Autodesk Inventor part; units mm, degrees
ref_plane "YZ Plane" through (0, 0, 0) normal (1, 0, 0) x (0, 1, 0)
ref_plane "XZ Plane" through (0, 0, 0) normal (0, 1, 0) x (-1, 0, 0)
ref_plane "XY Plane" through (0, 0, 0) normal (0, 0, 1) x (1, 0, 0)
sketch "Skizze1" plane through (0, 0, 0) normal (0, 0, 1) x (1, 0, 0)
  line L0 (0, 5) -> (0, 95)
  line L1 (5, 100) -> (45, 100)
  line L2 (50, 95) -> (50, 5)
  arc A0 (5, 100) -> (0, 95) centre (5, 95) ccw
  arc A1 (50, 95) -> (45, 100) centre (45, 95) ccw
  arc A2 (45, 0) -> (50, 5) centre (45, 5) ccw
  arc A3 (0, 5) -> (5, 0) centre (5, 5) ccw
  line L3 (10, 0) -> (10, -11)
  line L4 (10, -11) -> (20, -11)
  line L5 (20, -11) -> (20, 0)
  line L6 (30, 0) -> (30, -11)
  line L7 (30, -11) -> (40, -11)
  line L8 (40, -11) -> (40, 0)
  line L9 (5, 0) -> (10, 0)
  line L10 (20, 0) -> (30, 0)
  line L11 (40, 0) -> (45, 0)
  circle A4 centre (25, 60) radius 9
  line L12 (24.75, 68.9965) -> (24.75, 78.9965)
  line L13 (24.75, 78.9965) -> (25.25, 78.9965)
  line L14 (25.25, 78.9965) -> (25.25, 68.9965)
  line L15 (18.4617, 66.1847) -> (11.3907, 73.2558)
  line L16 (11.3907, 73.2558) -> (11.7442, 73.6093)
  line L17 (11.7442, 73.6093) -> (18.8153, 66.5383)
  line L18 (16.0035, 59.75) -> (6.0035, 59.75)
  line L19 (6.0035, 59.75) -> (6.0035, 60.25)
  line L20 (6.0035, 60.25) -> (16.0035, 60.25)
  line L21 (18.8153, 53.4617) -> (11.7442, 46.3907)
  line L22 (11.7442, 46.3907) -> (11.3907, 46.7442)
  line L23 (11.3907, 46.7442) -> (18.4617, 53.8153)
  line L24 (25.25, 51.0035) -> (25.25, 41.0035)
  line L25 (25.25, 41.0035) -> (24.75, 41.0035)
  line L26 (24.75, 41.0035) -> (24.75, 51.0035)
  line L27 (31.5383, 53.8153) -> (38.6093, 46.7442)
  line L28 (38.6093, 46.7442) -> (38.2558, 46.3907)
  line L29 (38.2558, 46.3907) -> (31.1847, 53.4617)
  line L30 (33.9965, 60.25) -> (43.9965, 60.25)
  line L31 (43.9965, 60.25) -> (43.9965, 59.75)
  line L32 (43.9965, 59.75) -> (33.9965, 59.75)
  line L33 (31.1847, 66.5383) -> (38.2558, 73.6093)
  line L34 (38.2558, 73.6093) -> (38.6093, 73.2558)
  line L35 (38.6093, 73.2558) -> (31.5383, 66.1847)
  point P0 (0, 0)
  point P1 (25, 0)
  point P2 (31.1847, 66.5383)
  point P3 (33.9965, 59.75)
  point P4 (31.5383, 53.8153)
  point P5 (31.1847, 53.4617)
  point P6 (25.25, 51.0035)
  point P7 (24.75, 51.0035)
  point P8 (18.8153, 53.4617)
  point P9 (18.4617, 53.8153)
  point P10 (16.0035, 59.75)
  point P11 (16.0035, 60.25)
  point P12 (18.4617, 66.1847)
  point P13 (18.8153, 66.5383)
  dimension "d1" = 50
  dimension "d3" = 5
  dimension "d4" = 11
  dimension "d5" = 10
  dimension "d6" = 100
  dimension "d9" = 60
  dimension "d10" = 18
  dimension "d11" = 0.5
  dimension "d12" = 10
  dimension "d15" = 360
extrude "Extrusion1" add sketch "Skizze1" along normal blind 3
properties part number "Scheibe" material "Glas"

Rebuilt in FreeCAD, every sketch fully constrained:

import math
import FreeCAD as App
import Part
import Sketcher

V = App.Vector
Q = App.Units.Quantity

doc = App.newDocument("Part")
params = doc.addObject("Spreadsheet::Sheet", "Params")
for row, (alias, value) in enumerate([
    ("sketch1_radius", "5 mm"),
    ("sketch1_radius2", "9 mm"),
    ("sketch1_width", "5 mm"),
    ("sketch1_width2", "10 mm"),
    ("sketch1_height", "11 mm"),
    ("pad1_length", "3 mm"),
], start=1):
    params.set(f"A{row}", alias)
    params.set(f"B{row}", "=" + value)
    params.setAlias(f"B{row}", alias)

body = doc.addObject("PartDesign::Body", "Body")

# Sketch on XY plane
sketch1 = body.newObject("Sketcher::SketchObject", "Sketch")
sketch1.AttachmentSupport = (doc.getObject("XY_Plane"), [""])
sketch1.MapMode = "FlatFace"
sketch1.addGeometry(Part.LineSegment(V(0, 95, 0), V(0, 5, 0)), False)
sketch1.addGeometry(Part.ArcOfCircle(Part.Circle(V(5, 5, 0), V(0, 0, 1), 5), math.radians(180), math.radians(270)), False)
sketch1.addGeometry(Part.LineSegment(V(5, 0, 0), V(10, 0, 0)), False)
sketch1.addGeometry(Part.LineSegment(V(10, 0, 0), V(10, -11, 0)), False)
sketch1.addGeometry(Part.LineSegment(V(10, -11, 0), V(20, -11, 0)), False)
sketch1.addGeometry(Part.LineSegment(V(20, -11, 0), V(20, 0, 0)), False)
sketch1.addGeometry(Part.LineSegment(V(20, 0, 0), V(30, 0, 0)), False)
sketch1.addGeometry(Part.LineSegment(V(30, 0, 0), V(30, -11, 0)), False)
sketch1.addGeometry(Part.LineSegment(V(30, -11, 0), V(40, -11, 0)), False)
sketch1.addGeometry(Part.LineSegment(V(40, -11, 0), V(40, 0, 0)), False)
sketch1.addGeometry(Part.LineSegment(V(40, 0, 0), V(45, 0, 0)), False)
sketch1.addGeometry(Part.ArcOfCircle(Part.Circle(V(45, 5, 0), V(0, 0, 1), 5), math.radians(-90), math.radians(0)), False)
sketch1.addGeometry(Part.LineSegment(V(50, 5, 0), V(50, 95, 0)), False)
sketch1.addGeometry(Part.ArcOfCircle(Part.Circle(V(45, 95, 0), V(0, 0, 1), 5), math.radians(0), math.radians(90)), False)
sketch1.addGeometry(Part.LineSegment(V(45, 100, 0), V(5, 100, 0)), False)
sketch1.addGeometry(Part.ArcOfCircle(Part.Circle(V(5, 95, 0), V(0, 0, 1), 5), math.radians(90), math.radians(180)), False)
sketch1.addGeometry(Part.ArcOfCircle(Part.Circle(V(25, 60, 0), V(0, 0, 1), 9), math.radians(1.591759), math.radians(43.408035)), False)
sketch1.addGeometry(Part.LineSegment(V(33.9965, 60.25, 0), V(43.9965, 60.25, 0)), False)
sketch1.addGeometry(Part.LineSegment(V(43.9965, 60.25, 0), V(43.9965, 59.75, 0)), False)
sketch1.addGeometry(Part.LineSegment(V(43.9965, 59.75, 0), V(33.9965, 59.75, 0)), False)
sketch1.addGeometry(Part.ArcOfCircle(Part.Circle(V(25, 60, 0), V(0, 0, 1), 9), math.radians(-43.408035), math.radians(-1.591759)), False)
sketch1.addGeometry(Part.LineSegment(V(31.5383, 53.8153, 0), V(38.6093, 46.7442, 0)), False)
sketch1.addGeometry(Part.LineSegment(V(38.6093, 46.7442, 0), V(38.2558, 46.3907, 0)), False)
sketch1.addGeometry(Part.LineSegment(V(38.2558, 46.3907, 0), V(31.1847, 53.4617, 0)), False)
sketch1.addGeometry(Part.ArcOfCircle(Part.Circle(V(25, 60, 0), V(0, 0, 1), 9), math.radians(-88.408241), math.radians(-46.591965)), False)
sketch1.addGeometry(Part.LineSegment(V(25.25, 51.0035, 0), V(25.25, 41.0035, 0)), False)
sketch1.addGeometry(Part.LineSegment(V(25.25, 41.0035, 0), V(24.75, 41.0035, 0)), False)
sketch1.addGeometry(Part.LineSegment(V(24.75, 41.0035, 0), V(24.75, 51.0035, 0)), False)
sketch1.addGeometry(Part.ArcOfCircle(Part.Circle(V(25, 60, 0), V(0, 0, 1), 9), math.radians(-133.408035), math.radians(-91.591759)), False)
sketch1.addGeometry(Part.LineSegment(V(18.8153, 53.4617, 0), V(11.7442, 46.3907, 0)), False)
sketch1.addGeometry(Part.LineSegment(V(11.7442, 46.3907, 0), V(11.3907, 46.7442, 0)), False)
sketch1.addGeometry(Part.LineSegment(V(11.3907, 46.7442, 0), V(18.4617, 53.8153, 0)), False)
sketch1.addGeometry(Part.ArcOfCircle(Part.Circle(V(25, 60, 0), V(0, 0, 1), 9), math.radians(-178.408241), math.radians(-136.591965)), False)
sketch1.addGeometry(Part.LineSegment(V(16.0035, 59.75, 0), V(6.0035, 59.75, 0)), False)
sketch1.addGeometry(Part.LineSegment(V(6.0035, 59.75, 0), V(6.0035, 60.25, 0)), False)
sketch1.addGeometry(Part.LineSegment(V(6.0035, 60.25, 0), V(16.0035, 60.25, 0)), False)
sketch1.addGeometry(Part.ArcOfCircle(Part.Circle(V(25, 60, 0), V(0, 0, 1), 9), math.radians(136.591965), math.radians(178.408241)), False)
sketch1.addGeometry(Part.LineSegment(V(18.4617, 66.1847, 0), V(11.3907, 73.2558, 0)), False)
sketch1.addGeometry(Part.LineSegment(V(11.3907, 73.2558, 0), V(11.7442, 73.6093, 0)), False)
sketch1.addGeometry(Part.LineSegment(V(11.7442, 73.6093, 0), V(18.8153, 66.5383, 0)), False)
sketch1.addGeometry(Part.ArcOfCircle(Part.Circle(V(25, 60, 0), V(0, 0, 1), 9), math.radians(91.591759), math.radians(133.408035)), False)
sketch1.addGeometry(Part.LineSegment(V(24.75, 68.9965, 0), V(24.75, 78.9965, 0)), False)
sketch1.addGeometry(Part.LineSegment(V(24.75, 78.9965, 0), V(25.25, 78.9965, 0)), False)
sketch1.addGeometry(Part.LineSegment(V(25.25, 78.9965, 0), V(25.25, 68.9965, 0)), False)
sketch1.addGeometry(Part.ArcOfCircle(Part.Circle(V(25, 60, 0), V(0, 0, 1), 9), math.radians(46.591965), math.radians(88.408241)), False)
sketch1.addGeometry(Part.LineSegment(V(31.1847, 66.5383, 0), V(38.2558, 73.6093, 0)), False)
sketch1.addGeometry(Part.LineSegment(V(38.2558, 73.6093, 0), V(38.6093, 73.2558, 0)), False)
sketch1.addGeometry(Part.LineSegment(V(38.6093, 73.2558, 0), V(31.5383, 66.1847, 0)), False)
sketch1.addConstraint(Sketcher.Constraint("Tangent", 0, 2, 1, 1))
sketch1.addConstraint(Sketcher.Constraint("Tangent", 1, 2, 2, 1))
sketch1.addConstraint(Sketcher.Constraint("Coincident", 2, 2, 3, 1))
sketch1.addConstraint(Sketcher.Constraint("Coincident", 3, 2, 4, 1))
sketch1.addConstraint(Sketcher.Constraint("Coincident", 4, 2, 5, 1))
sketch1.addConstraint(Sketcher.Constraint("Coincident", 5, 2, 6, 1))
sketch1.addConstraint(Sketcher.Constraint("Coincident", 6, 2, 7, 1))
sketch1.addConstraint(Sketcher.Constraint("Coincident", 7, 2, 8, 1))
sketch1.addConstraint(Sketcher.Constraint("Coincident", 8, 2, 9, 1))
sketch1.addConstraint(Sketcher.Constraint("Coincident", 9, 2, 10, 1))
sketch1.addConstraint(Sketcher.Constraint("Tangent", 10, 2, 11, 1))
sketch1.addConstraint(Sketcher.Constraint("Tangent", 11, 2, 12, 1))
sketch1.addConstraint(Sketcher.Constraint("Tangent", 12, 2, 13, 1))
sketch1.addConstraint(Sketcher.Constraint("Tangent", 13, 2, 14, 1))
sketch1.addConstraint(Sketcher.Constraint("Tangent", 14, 2, 15, 1))
sketch1.addConstraint(Sketcher.Constraint("Tangent", 15, 2, 0, 1))
sketch1.addConstraint(Sketcher.Constraint("Coincident", 16, 1, 17, 1))
sketch1.addConstraint(Sketcher.Constraint("Coincident", 17, 2, 18, 1))
sketch1.addConstraint(Sketcher.Constraint("Coincident", 18, 2, 19, 1))
sketch1.addConstraint(Sketcher.Constraint("Coincident", 19, 2, 20, 2))
sketch1.addConstraint(Sketcher.Constraint("Coincident", 20, 1, 21, 1))
sketch1.addConstraint(Sketcher.Constraint("Coincident", 21, 2, 22, 1))
sketch1.addConstraint(Sketcher.Constraint("Coincident", 22, 2, 23, 1))
sketch1.addConstraint(Sketcher.Constraint("Coincident", 23, 2, 24, 2))
sketch1.addConstraint(Sketcher.Constraint("Coincident", 24, 1, 25, 1))
sketch1.addConstraint(Sketcher.Constraint("Coincident", 25, 2, 26, 1))
sketch1.addConstraint(Sketcher.Constraint("Coincident", 26, 2, 27, 1))
sketch1.addConstraint(Sketcher.Constraint("Coincident", 27, 2, 28, 2))
sketch1.addConstraint(Sketcher.Constraint("Coincident", 28, 1, 29, 1))
sketch1.addConstraint(Sketcher.Constraint("Coincident", 29, 2, 30, 1))
sketch1.addConstraint(Sketcher.Constraint("Coincident", 30, 2, 31, 1))
sketch1.addConstraint(Sketcher.Constraint("Coincident", 31, 2, 32, 2))
sketch1.addConstraint(Sketcher.Constraint("Coincident", 32, 1, 33, 1))
sketch1.addConstraint(Sketcher.Constraint("Coincident", 33, 2, 34, 1))
sketch1.addConstraint(Sketcher.Constraint("Coincident", 34, 2, 35, 1))
sketch1.addConstraint(Sketcher.Constraint("Coincident", 35, 2, 36, 2))
sketch1.addConstraint(Sketcher.Constraint("Coincident", 36, 1, 37, 1))
sketch1.addConstraint(Sketcher.Constraint("Coincident", 37, 2, 38, 1))
sketch1.addConstraint(Sketcher.Constraint("Coincident", 38, 2, 39, 1))
sketch1.addConstraint(Sketcher.Constraint("Coincident", 39, 2, 40, 2))
sketch1.addConstraint(Sketcher.Constraint("Coincident", 40, 1, 41, 1))
sketch1.addConstraint(Sketcher.Constraint("Coincident", 41, 2, 42, 1))
sketch1.addConstraint(Sketcher.Constraint("Coincident", 42, 2, 43, 1))
sketch1.addConstraint(Sketcher.Constraint("Coincident", 43, 2, 44, 2))
sketch1.addConstraint(Sketcher.Constraint("Coincident", 44, 1, 45, 1))
sketch1.addConstraint(Sketcher.Constraint("Coincident", 45, 2, 46, 1))
sketch1.addConstraint(Sketcher.Constraint("Coincident", 46, 2, 47, 1))
sketch1.addConstraint(Sketcher.Constraint("Coincident", 47, 2, 16, 2))
sketch1.addConstraint(Sketcher.Constraint("Vertical", 0))
sketch1.addConstraint(Sketcher.Constraint("Horizontal", 2))
sketch1.addConstraint(Sketcher.Constraint("Vertical", 3))
sketch1.addConstraint(Sketcher.Constraint("Horizontal", 4))
sketch1.addConstraint(Sketcher.Constraint("Vertical", 5))
sketch1.addConstraint(Sketcher.Constraint("Horizontal", 6))
sketch1.addConstraint(Sketcher.Constraint("Vertical", 7))
sketch1.addConstraint(Sketcher.Constraint("Horizontal", 8))
sketch1.addConstraint(Sketcher.Constraint("Vertical", 9))
sketch1.addConstraint(Sketcher.Constraint("Horizontal", 10))
sketch1.addConstraint(Sketcher.Constraint("Vertical", 12))
sketch1.addConstraint(Sketcher.Constraint("Horizontal", 14))
sketch1.addConstraint(Sketcher.Constraint("Horizontal", 17))
sketch1.addConstraint(Sketcher.Constraint("Vertical", 18))
sketch1.addConstraint(Sketcher.Constraint("Horizontal", 19))
sketch1.addConstraint(Sketcher.Constraint("Vertical", 25))
sketch1.addConstraint(Sketcher.Constraint("Horizontal", 26))
sketch1.addConstraint(Sketcher.Constraint("Vertical", 27))
sketch1.addConstraint(Sketcher.Constraint("Horizontal", 33))
sketch1.addConstraint(Sketcher.Constraint("Vertical", 34))
sketch1.addConstraint(Sketcher.Constraint("Horizontal", 35))
sketch1.addConstraint(Sketcher.Constraint("Vertical", 41))
sketch1.addConstraint(Sketcher.Constraint("Horizontal", 42))
sketch1.addConstraint(Sketcher.Constraint("Vertical", 43))
sketch1.addConstraint(Sketcher.Constraint("Coincident", 20, 3, 16, 3))
sketch1.addConstraint(Sketcher.Constraint("Coincident", 24, 3, 16, 3))
sketch1.addConstraint(Sketcher.Constraint("Coincident", 28, 3, 16, 3))
sketch1.addConstraint(Sketcher.Constraint("Coincident", 32, 3, 16, 3))
sketch1.addConstraint(Sketcher.Constraint("Coincident", 36, 3, 16, 3))
sketch1.addConstraint(Sketcher.Constraint("Coincident", 40, 3, 16, 3))
sketch1.addConstraint(Sketcher.Constraint("Coincident", 44, 3, 16, 3))
sketch1.addConstraint(Sketcher.Constraint("Equal", 1, 11))
sketch1.addConstraint(Sketcher.Constraint("Equal", 11, 13))
sketch1.addConstraint(Sketcher.Constraint("Equal", 13, 15))
sketch1.addConstraint(Sketcher.Constraint("Equal", 16, 20))
sketch1.addConstraint(Sketcher.Constraint("Equal", 20, 24))
sketch1.addConstraint(Sketcher.Constraint("Equal", 24, 28))
sketch1.addConstraint(Sketcher.Constraint("Equal", 28, 32))
sketch1.addConstraint(Sketcher.Constraint("Equal", 32, 36))
sketch1.addConstraint(Sketcher.Constraint("Equal", 36, 40))
sketch1.addConstraint(Sketcher.Constraint("Equal", 40, 44))
sketch1.addConstraint(Sketcher.Constraint("PointOnObject", 0, 2, -2))
sketch1.addConstraint(Sketcher.Constraint("PointOnObject", 1, 2, -1))
sketch1.addConstraint(Sketcher.Constraint("PointOnObject", 5, 2, -1))
sketch1.addConstraint(Sketcher.Constraint("PointOnObject", 9, 2, -1))
sketch1.addConstraint(Sketcher.Constraint("Perpendicular", 21, 22))
sketch1.addConstraint(Sketcher.Constraint("Perpendicular", 22, 23))
sketch1.addConstraint(Sketcher.Constraint("Perpendicular", 23, 29))
sketch1.addConstraint(Sketcher.Constraint("Perpendicular", 29, 30))
sketch1.addConstraint(Sketcher.Constraint("Perpendicular", 30, 31))
sketch1.addConstraint(Sketcher.Constraint("Perpendicular", 31, 37))
sketch1.addConstraint(Sketcher.Constraint("Perpendicular", 37, 38))
sketch1.addConstraint(Sketcher.Constraint("Perpendicular", 38, 39))
sketch1.addConstraint(Sketcher.Constraint("Perpendicular", 39, 45))
sketch1.addConstraint(Sketcher.Constraint("Perpendicular", 45, 46))
sketch1.addConstraint(Sketcher.Constraint("Perpendicular", 46, 47))
sketch1.addConstraint(Sketcher.Constraint("Horizontal", 4, 2, 7, 2))
sketch1.addConstraint(Sketcher.Constraint("Horizontal", 24, 1, 27, 2))
sketch1.addConstraint(Sketcher.Constraint("Horizontal", 23, 2, 28, 1))
sketch1.addConstraint(Sketcher.Constraint("Horizontal", 22, 2, 29, 2))
sketch1.addConstraint(Sketcher.Constraint("Horizontal", 21, 2, 30, 2))
sketch1.addConstraint(Sketcher.Constraint("Horizontal", 20, 1, 31, 2))
sketch1.addConstraint(Sketcher.Constraint("Horizontal", 19, 2, 32, 1))
sketch1.addConstraint(Sketcher.Constraint("Horizontal", 17, 2, 34, 2))
sketch1.addConstraint(Sketcher.Constraint("Horizontal", 40, 1, 43, 2))
sketch1.addConstraint(Sketcher.Constraint("Horizontal", 39, 2, 44, 1))
sketch1.addConstraint(Sketcher.Constraint("Horizontal", 38, 2, 45, 2))
sketch1.addConstraint(Sketcher.Constraint("Horizontal", 37, 2, 46, 2))
sketch1.addConstraint(Sketcher.Constraint("Vertical", 16, 1, 19, 2))
sketch1.addConstraint(Sketcher.Constraint("Vertical", 31, 2, 36, 1))
sketch1.addConstraint(Sketcher.Constraint("Vertical", 30, 2, 37, 2))
sketch1.addConstraint(Sketcher.Constraint("Vertical", 29, 2, 38, 2))
sketch1.addConstraint(Sketcher.Constraint("Vertical", 27, 2, 40, 1))
sketch1.addConstraint(Sketcher.Constraint("Equal", 4, 6))
sketch1.addConstraint(Sketcher.Constraint("Equal", 6, 8))
sketch1.addConstraint(Sketcher.Constraint("Equal", 2, 10))
sketch1.addConstraint(Sketcher.Constraint("Equal", 8, 17))
sketch1.addConstraint(Sketcher.Constraint("Equal", 19, 33))
sketch1.addConstraint(Sketcher.Constraint("Equal", 42, 18))
sketch1.addConstraint(Sketcher.Constraint("Equal", 35, 25))
sketch1.addConstraint(Sketcher.Constraint("Equal", 27, 41))
sketch1.addConstraint(Sketcher.Constraint("Equal", 21, 23))
sketch1.addConstraint(Sketcher.Constraint("Radius", 1, Q("5 mm")))
sketch1.addConstraint(Sketcher.Constraint("Radius", 16, Q("9 mm")))
sketch1.addConstraint(Sketcher.Constraint("DistanceX", 2, 1, 2, 2, Q("5 mm")))
sketch1.addConstraint(Sketcher.Constraint("DistanceX", 4, 1, 4, 2, Q("10 mm")))
sketch1.addConstraint(Sketcher.Constraint("DistanceY", 3, 2, 3, 1, Q("11 mm")))
sketch1.addConstraint(Sketcher.Constraint("Distance", 21, Q("10 mm")))
sketch1.addConstraint(Sketcher.Constraint("DistanceX", 26, 2, 26, 1, Q("0.5 mm")))
sketch1.addConstraint(Sketcher.Constraint("DistanceY", -1, 1, 16, 3, Q("60 mm")))
sketch1.addConstraint(Sketcher.Constraint("DistanceY", -1, 1, 13, 2, Q("100 mm")))
sketch1.addConstraint(Sketcher.Constraint("Distance", 22, Q("0.5 mm")))
sketch1.addConstraint(Sketcher.Constraint("DistanceX", -1, 1, 16, 3, Q("25 mm")))
sketch1.setExpression("Constraints[130]", "Params.sketch1_radius")
sketch1.setExpression("Constraints[131]", "Params.sketch1_radius2")
sketch1.setExpression("Constraints[132]", "Params.sketch1_width")
sketch1.setExpression("Constraints[133]", "Params.sketch1_width2")
sketch1.setExpression("Constraints[134]", "Params.sketch1_height")
pad1 = body.newObject("PartDesign::Pad", "Pad")
pad1.Profile = sketch1
pad1.setExpression("Length", "Params.pad1_length")

doc.recompute()
